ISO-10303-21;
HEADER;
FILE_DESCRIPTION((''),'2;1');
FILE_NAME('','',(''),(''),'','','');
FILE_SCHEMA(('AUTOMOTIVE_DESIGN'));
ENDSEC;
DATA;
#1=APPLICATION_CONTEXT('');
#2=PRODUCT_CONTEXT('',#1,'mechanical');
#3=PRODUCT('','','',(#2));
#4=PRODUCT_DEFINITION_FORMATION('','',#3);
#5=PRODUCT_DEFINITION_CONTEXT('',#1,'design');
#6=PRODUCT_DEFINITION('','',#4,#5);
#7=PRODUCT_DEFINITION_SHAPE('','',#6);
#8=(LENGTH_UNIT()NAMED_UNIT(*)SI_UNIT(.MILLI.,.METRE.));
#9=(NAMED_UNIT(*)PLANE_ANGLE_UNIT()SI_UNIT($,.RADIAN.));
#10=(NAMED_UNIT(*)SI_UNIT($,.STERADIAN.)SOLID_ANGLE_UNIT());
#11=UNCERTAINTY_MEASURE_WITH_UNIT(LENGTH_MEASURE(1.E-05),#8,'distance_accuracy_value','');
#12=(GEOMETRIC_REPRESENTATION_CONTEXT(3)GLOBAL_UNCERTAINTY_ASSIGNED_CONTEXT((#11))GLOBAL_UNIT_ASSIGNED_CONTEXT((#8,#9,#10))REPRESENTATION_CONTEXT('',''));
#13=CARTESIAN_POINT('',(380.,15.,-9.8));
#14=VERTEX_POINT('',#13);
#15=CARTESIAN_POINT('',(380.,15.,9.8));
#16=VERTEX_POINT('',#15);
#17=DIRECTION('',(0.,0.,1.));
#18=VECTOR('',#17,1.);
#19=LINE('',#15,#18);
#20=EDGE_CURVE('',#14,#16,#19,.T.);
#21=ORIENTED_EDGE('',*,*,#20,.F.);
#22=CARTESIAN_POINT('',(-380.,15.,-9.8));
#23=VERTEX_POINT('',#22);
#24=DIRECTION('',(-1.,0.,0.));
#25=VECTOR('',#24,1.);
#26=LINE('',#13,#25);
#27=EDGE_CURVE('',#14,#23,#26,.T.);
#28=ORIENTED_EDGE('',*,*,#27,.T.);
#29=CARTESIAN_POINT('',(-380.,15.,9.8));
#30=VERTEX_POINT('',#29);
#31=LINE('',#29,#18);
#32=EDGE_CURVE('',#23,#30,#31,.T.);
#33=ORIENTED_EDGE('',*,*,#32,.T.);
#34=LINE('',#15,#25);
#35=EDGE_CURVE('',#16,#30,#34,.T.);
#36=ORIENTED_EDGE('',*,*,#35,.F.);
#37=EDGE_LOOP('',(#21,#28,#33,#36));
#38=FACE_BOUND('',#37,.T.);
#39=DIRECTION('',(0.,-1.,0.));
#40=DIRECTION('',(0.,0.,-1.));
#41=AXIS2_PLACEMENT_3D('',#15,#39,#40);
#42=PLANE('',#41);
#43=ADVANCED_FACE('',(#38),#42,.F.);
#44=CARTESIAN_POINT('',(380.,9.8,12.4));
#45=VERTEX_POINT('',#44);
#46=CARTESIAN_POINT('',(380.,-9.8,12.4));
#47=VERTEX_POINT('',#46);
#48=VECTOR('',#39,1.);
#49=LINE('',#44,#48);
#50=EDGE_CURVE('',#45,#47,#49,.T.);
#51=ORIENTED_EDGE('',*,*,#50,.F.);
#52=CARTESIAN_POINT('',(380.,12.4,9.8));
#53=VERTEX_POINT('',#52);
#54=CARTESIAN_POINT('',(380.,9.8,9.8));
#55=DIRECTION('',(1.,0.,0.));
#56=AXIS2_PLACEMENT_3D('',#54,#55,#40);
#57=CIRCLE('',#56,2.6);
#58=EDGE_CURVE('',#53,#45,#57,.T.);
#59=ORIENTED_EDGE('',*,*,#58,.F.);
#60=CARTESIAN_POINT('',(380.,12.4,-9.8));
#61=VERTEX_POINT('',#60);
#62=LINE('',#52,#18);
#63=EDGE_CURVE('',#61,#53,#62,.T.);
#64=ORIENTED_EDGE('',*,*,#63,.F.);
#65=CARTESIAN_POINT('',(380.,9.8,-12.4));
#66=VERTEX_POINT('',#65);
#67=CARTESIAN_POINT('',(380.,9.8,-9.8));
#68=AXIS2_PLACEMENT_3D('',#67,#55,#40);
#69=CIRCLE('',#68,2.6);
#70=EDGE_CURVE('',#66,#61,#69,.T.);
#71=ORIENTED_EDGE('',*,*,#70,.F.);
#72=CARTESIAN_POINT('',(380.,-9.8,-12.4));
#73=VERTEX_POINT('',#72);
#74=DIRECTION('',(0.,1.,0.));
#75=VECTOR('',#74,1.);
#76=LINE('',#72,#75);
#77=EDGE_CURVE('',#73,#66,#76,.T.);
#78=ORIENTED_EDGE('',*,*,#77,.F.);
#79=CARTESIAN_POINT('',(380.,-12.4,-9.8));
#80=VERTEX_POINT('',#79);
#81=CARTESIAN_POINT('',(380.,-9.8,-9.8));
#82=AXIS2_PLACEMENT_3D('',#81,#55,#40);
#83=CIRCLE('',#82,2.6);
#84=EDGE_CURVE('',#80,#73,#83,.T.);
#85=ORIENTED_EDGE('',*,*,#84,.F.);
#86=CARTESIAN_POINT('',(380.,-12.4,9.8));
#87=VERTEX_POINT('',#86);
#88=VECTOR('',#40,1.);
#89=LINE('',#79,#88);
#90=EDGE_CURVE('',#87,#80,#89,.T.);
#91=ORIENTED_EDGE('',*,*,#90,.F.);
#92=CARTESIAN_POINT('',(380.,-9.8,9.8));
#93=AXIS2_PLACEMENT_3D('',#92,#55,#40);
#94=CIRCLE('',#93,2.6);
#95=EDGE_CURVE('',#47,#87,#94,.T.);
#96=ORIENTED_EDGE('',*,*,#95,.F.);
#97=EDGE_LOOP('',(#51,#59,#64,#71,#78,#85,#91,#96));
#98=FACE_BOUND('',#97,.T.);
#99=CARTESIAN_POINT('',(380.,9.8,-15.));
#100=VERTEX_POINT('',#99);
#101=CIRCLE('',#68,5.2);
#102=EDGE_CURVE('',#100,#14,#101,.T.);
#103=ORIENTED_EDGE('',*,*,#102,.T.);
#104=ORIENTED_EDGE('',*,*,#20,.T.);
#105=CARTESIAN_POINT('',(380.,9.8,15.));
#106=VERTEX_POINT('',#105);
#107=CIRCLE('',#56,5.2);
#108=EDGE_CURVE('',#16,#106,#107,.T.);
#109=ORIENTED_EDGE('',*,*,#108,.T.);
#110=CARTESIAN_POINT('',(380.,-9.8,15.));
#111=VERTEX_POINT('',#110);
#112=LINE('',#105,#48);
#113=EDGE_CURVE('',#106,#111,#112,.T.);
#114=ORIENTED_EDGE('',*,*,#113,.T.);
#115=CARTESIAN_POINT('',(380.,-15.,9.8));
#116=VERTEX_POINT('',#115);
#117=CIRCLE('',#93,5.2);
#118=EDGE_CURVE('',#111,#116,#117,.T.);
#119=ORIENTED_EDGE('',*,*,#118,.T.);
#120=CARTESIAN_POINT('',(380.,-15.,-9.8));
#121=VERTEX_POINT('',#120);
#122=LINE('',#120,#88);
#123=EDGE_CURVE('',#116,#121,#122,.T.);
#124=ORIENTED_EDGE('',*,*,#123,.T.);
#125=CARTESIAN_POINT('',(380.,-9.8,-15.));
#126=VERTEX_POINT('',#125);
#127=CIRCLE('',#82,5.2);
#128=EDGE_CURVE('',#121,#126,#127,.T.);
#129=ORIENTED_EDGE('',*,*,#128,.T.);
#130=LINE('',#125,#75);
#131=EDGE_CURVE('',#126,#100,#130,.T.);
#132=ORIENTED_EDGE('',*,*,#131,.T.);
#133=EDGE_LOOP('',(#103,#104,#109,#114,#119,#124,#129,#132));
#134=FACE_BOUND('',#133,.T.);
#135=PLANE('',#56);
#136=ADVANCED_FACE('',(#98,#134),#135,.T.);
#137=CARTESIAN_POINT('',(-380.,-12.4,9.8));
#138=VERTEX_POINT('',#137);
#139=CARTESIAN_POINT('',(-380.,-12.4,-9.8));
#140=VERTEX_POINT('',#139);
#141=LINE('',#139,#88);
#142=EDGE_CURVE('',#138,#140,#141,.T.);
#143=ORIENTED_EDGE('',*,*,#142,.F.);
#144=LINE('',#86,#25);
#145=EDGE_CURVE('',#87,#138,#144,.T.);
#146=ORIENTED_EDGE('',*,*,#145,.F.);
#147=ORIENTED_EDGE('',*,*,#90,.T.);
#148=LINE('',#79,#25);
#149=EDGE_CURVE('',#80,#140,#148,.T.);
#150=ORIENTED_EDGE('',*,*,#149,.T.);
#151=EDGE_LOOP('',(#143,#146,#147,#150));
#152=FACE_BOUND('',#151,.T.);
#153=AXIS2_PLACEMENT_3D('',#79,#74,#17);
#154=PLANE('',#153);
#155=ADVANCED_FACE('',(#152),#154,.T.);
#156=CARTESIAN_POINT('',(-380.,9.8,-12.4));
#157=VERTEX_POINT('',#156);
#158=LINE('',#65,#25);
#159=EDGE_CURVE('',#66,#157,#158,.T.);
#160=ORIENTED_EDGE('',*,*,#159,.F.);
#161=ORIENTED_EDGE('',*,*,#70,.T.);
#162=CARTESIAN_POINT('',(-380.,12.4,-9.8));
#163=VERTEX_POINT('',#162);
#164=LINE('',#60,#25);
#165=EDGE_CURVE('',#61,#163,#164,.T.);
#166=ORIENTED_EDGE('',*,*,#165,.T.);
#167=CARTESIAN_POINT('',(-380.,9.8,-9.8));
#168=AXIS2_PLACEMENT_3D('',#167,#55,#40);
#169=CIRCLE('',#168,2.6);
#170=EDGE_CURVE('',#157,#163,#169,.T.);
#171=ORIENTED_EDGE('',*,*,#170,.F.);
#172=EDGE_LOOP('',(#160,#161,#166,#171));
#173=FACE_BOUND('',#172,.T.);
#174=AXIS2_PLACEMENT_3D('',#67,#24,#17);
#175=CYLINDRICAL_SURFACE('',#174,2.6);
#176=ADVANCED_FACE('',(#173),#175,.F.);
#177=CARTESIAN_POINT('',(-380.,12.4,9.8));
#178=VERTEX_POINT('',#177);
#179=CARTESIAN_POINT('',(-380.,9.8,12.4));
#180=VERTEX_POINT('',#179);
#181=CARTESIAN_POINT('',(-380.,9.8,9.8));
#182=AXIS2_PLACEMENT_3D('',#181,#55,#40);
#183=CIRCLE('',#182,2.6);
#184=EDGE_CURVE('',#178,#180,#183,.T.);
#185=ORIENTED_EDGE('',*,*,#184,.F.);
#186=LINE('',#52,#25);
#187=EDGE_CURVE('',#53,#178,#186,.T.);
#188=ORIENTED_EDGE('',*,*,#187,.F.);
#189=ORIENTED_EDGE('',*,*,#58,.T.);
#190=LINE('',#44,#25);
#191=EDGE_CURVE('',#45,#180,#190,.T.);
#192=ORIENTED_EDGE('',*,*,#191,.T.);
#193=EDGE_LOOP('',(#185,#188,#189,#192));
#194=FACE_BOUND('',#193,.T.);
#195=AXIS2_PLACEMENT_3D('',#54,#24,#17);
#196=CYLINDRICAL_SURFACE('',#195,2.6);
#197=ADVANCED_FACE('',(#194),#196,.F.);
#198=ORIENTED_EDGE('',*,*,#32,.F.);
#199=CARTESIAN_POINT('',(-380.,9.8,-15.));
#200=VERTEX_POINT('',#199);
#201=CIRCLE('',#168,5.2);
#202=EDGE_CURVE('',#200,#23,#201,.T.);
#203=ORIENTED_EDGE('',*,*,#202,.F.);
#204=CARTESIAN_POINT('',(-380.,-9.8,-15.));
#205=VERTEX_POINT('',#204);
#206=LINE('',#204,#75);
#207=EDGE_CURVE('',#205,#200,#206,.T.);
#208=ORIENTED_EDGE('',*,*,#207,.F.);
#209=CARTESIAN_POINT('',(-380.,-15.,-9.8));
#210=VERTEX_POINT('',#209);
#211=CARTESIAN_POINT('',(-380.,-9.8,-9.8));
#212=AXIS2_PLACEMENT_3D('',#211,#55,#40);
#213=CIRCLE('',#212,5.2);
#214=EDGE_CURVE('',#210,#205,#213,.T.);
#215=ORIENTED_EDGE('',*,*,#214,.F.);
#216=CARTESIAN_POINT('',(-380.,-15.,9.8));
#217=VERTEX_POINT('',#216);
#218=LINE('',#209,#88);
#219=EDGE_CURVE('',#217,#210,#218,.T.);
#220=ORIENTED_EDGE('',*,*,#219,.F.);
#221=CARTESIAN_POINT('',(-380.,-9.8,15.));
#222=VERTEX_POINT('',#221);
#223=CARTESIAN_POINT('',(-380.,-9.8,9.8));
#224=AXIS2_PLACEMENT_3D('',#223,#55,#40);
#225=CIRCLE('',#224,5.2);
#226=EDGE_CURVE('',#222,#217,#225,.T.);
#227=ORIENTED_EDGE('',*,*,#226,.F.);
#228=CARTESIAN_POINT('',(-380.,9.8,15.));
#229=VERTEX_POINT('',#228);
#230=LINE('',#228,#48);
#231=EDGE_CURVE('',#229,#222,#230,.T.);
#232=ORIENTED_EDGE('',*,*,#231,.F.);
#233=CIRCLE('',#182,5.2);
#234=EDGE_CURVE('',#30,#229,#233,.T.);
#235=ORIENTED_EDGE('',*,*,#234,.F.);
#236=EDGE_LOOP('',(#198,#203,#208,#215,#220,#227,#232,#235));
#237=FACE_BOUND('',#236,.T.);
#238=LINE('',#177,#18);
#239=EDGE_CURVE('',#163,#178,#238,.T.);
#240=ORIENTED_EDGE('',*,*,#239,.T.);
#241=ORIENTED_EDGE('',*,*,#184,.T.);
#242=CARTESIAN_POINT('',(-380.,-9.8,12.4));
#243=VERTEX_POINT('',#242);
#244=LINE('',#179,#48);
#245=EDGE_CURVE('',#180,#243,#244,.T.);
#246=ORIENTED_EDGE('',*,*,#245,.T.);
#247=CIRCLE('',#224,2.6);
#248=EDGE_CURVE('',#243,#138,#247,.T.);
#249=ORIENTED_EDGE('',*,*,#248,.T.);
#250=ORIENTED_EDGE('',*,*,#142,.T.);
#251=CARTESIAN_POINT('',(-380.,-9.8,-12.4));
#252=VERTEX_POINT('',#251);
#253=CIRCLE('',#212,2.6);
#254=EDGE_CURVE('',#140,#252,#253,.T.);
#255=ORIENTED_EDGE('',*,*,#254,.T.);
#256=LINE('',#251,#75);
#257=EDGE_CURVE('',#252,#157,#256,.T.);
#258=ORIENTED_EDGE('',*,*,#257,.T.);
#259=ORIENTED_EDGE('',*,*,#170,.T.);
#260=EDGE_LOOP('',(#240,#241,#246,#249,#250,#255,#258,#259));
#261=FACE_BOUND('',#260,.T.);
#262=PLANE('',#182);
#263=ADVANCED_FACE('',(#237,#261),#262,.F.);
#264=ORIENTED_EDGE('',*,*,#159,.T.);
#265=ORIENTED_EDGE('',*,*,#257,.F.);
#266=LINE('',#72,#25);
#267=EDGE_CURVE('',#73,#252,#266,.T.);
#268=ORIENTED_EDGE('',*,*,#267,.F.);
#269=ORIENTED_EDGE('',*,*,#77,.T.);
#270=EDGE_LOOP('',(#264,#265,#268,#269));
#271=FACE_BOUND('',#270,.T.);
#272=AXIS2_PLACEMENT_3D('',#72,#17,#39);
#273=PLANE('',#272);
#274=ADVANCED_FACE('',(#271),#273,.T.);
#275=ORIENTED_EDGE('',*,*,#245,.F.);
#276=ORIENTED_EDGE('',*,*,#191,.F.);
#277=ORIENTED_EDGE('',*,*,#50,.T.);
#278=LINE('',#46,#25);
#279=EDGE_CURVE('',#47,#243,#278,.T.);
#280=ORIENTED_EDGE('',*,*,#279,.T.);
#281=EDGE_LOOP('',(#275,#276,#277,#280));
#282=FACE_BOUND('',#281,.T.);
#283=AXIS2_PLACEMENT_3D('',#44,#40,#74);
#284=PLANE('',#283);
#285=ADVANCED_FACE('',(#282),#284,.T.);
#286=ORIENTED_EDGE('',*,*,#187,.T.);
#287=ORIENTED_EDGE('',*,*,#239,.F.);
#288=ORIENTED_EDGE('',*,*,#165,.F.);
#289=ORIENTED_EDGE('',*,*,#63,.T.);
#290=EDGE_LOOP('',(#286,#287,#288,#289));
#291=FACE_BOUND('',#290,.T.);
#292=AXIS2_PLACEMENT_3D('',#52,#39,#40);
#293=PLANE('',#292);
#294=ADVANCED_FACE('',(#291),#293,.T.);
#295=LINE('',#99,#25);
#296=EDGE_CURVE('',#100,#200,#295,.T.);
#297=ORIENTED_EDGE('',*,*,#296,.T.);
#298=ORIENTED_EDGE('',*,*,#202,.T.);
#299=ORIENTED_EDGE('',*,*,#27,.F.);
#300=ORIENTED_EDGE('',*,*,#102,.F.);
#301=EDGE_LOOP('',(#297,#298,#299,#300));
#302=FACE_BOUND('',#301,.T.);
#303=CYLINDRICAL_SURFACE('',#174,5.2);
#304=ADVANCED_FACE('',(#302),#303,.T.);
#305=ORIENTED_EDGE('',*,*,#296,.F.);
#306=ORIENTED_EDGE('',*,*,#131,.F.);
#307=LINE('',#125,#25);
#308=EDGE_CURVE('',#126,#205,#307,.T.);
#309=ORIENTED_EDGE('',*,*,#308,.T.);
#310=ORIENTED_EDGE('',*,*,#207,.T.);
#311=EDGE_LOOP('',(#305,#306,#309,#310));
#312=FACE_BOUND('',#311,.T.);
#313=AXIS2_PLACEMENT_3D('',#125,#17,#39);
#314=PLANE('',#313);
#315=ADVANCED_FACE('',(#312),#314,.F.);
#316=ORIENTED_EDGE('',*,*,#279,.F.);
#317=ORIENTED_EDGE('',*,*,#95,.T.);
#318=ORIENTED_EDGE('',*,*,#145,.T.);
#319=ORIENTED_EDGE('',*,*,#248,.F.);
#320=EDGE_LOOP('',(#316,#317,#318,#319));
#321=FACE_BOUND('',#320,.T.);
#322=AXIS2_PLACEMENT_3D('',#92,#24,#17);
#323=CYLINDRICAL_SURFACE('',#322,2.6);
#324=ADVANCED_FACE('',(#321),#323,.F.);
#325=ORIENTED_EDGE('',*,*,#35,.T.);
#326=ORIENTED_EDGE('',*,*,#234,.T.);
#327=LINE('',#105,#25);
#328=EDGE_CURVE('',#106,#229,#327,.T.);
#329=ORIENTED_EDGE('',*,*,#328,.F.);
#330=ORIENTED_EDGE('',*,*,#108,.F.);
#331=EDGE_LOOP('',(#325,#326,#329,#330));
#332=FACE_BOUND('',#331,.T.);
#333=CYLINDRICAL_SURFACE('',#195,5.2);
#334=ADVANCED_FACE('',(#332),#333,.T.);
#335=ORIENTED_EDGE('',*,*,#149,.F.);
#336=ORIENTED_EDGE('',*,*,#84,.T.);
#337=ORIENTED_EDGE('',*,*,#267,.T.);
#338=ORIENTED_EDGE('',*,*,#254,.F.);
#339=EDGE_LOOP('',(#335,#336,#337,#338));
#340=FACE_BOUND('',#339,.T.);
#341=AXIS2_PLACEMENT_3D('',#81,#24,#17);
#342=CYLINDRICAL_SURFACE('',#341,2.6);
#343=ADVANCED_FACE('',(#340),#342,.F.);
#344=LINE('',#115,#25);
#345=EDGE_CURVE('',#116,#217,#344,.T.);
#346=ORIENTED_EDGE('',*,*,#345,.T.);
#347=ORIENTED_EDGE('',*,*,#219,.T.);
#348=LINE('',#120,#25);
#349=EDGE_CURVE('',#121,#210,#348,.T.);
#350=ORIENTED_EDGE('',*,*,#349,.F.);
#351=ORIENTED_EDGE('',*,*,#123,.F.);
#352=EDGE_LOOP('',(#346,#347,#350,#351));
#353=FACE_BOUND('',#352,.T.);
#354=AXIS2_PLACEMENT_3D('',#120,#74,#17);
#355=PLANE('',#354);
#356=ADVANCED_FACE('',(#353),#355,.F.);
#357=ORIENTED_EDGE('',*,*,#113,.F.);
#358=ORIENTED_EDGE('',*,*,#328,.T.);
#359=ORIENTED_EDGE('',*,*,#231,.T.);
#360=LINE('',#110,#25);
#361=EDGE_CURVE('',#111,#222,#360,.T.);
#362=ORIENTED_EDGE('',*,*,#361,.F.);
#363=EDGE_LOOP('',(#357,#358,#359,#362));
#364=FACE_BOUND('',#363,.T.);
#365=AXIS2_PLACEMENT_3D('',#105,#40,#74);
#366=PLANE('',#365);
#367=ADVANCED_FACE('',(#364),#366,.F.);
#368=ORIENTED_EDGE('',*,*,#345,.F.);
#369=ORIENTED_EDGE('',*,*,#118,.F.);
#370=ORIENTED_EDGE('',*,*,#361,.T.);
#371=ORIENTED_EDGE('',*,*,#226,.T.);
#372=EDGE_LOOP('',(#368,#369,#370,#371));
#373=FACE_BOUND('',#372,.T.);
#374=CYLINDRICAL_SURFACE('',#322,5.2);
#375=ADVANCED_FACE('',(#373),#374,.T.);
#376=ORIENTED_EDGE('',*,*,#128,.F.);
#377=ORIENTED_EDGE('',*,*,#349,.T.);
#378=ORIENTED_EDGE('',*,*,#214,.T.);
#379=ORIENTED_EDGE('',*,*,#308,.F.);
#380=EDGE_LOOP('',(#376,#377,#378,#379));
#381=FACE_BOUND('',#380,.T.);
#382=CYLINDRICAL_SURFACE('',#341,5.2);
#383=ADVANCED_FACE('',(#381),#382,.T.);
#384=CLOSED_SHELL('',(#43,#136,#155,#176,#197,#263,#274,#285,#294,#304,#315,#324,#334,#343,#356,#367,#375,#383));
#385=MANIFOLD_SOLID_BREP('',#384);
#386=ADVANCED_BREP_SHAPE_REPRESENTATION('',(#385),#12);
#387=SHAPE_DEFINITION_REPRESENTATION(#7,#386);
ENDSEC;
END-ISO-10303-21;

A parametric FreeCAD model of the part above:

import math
import FreeCAD as App
import Part
import Sketcher

V = App.Vector
Q = App.Units.Quantity

doc = App.newDocument("Part")
body = doc.addObject("PartDesign::Body", "Body")

# Sketch on YZ plane
sketch1 = doc.addObject("Sketcher::SketchObject", "Sketch")
body.addObject(sketch1)
sketch1.AttachmentSupport = (doc.YZ_Plane, [""])
sketch1.MapMode = "FlatFace"
sketch1.AttachmentOffset = App.Placement(V(0, 0, -380), App.Rotation())
sketch1.addGeometry([
    Part.LineSegment(V(-9.8, -15, 0), V(9.8, -15, 0)),  # 0
    Part.ArcOfCircle(Part.Circle(V(9.8, -9.8, 0), V(0, 0, 1), 5.2), math.radians(-90), math.radians(0)),  # 1
    Part.LineSegment(V(15, -9.8, 0), V(15, 9.8, 0)),  # 2
    Part.ArcOfCircle(Part.Circle(V(9.8, 9.8, 0), V(0, 0, 1), 5.2), math.radians(0), math.radians(90)),  # 3
    Part.LineSegment(V(9.8, 15, 0), V(-9.8, 15, 0)),  # 4
    Part.ArcOfCircle(Part.Circle(V(-9.8, 9.8, 0), V(0, 0, 1), 5.2), math.radians(90), math.radians(180)),  # 5
    Part.LineSegment(V(-15, 9.8, 0), V(-15, -9.8, 0)),  # 6
    Part.ArcOfCircle(Part.Circle(V(-9.8, -9.8, 0), V(0, 0, 1), 5.2), math.radians(-180), math.radians(-90)),  # 7
    Part.LineSegment(V(9.8, -12.4, 0), V(-9.8, -12.4, 0)),  # 8
    Part.ArcOfCircle(Part.Circle(V(-9.8, -9.8, 0), V(0, 0, 1), 2.6), math.radians(180), math.radians(270)),  # 9
    Part.LineSegment(V(-12.4, -9.8, 0), V(-12.4, 9.8, 0)),  # 10
    Part.ArcOfCircle(Part.Circle(V(-9.8, 9.8, 0), V(0, 0, 1), 2.6), math.radians(90), math.radians(180)),  # 11
    Part.LineSegment(V(-9.8, 12.4, 0), V(9.8, 12.4, 0)),  # 12
    Part.ArcOfCircle(Part.Circle(V(9.8, 9.8, 0), V(0, 0, 1), 2.6), math.radians(0), math.radians(90)),  # 13
    Part.LineSegment(V(12.4, 9.8, 0), V(12.4, -9.8, 0)),  # 14
    Part.ArcOfCircle(Part.Circle(V(9.8, -9.8, 0), V(0, 0, 1), 2.6), math.radians(-90), math.radians(0)),  # 15
], False)
sketch1.addConstraint([
    Sketcher.Constraint("Tangent", 0, 2, 1, 1),
    Sketcher.Constraint("Tangent", 1, 2, 2, 1),
    Sketcher.Constraint("Tangent", 2, 2, 3, 1),
    Sketcher.Constraint("Tangent", 3, 2, 4, 1),
    Sketcher.Constraint("Tangent", 4, 2, 5, 1),
    Sketcher.Constraint("Tangent", 5, 2, 6, 1),
    Sketcher.Constraint("Tangent", 6, 2, 7, 1),
    Sketcher.Constraint("Tangent", 7, 2, 0, 1),
    Sketcher.Constraint("Tangent", 8, 2, 9, 2),
    Sketcher.Constraint("Tangent", 9, 1, 10, 1),
    Sketcher.Constraint("Tangent", 10, 2, 11, 2),
    Sketcher.Constraint("Tangent", 11, 1, 12, 1),
    Sketcher.Constraint("Tangent", 12, 2, 13, 2),
    Sketcher.Constraint("Tangent", 13, 1, 14, 1),
    Sketcher.Constraint("Tangent", 14, 2, 15, 2),
    Sketcher.Constraint("Tangent", 15, 1, 8, 1),
    Sketcher.Constraint("Horizontal", 0),
    Sketcher.Constraint("Vertical", 2),
    Sketcher.Constraint("Horizontal", 4),
    Sketcher.Constraint("Vertical", 6),
    Sketcher.Constraint("Horizontal", 8),
    Sketcher.Constraint("Vertical", 10),
    Sketcher.Constraint("Horizontal", 12),
    Sketcher.Constraint("Vertical", 14),
    Sketcher.Constraint("Coincident", 9, 3, 7, 3),
    Sketcher.Constraint("Coincident", 11, 3, 5, 3),
    Sketcher.Constraint("Coincident", 13, 3, 3, 3),
    Sketcher.Constraint("Equal", 1, 3),
    Sketcher.Constraint("Equal", 3, 5),
    Sketcher.Constraint("Equal", 5, 7),
    Sketcher.Constraint("Equal", 13, 15),
    Sketcher.Constraint("Symmetric", 1, 3, 5, 3, -1, 1),
    Sketcher.Constraint("Equal", 12, 2),
    Sketcher.Constraint("Radius", 1, Q("5.2 mm")),
    Sketcher.Constraint("Radius", 9, Q("2.6 mm")),
    Sketcher.Constraint("DistanceX", 0, 1, 0, 2, Q("19.6 mm")),
])
pad1 = doc.addObject("PartDesign::Pad", "Pad")
body.addObject(pad1)
pad1.Profile = sketch1
pad1.Length = 760

doc.recompute()
